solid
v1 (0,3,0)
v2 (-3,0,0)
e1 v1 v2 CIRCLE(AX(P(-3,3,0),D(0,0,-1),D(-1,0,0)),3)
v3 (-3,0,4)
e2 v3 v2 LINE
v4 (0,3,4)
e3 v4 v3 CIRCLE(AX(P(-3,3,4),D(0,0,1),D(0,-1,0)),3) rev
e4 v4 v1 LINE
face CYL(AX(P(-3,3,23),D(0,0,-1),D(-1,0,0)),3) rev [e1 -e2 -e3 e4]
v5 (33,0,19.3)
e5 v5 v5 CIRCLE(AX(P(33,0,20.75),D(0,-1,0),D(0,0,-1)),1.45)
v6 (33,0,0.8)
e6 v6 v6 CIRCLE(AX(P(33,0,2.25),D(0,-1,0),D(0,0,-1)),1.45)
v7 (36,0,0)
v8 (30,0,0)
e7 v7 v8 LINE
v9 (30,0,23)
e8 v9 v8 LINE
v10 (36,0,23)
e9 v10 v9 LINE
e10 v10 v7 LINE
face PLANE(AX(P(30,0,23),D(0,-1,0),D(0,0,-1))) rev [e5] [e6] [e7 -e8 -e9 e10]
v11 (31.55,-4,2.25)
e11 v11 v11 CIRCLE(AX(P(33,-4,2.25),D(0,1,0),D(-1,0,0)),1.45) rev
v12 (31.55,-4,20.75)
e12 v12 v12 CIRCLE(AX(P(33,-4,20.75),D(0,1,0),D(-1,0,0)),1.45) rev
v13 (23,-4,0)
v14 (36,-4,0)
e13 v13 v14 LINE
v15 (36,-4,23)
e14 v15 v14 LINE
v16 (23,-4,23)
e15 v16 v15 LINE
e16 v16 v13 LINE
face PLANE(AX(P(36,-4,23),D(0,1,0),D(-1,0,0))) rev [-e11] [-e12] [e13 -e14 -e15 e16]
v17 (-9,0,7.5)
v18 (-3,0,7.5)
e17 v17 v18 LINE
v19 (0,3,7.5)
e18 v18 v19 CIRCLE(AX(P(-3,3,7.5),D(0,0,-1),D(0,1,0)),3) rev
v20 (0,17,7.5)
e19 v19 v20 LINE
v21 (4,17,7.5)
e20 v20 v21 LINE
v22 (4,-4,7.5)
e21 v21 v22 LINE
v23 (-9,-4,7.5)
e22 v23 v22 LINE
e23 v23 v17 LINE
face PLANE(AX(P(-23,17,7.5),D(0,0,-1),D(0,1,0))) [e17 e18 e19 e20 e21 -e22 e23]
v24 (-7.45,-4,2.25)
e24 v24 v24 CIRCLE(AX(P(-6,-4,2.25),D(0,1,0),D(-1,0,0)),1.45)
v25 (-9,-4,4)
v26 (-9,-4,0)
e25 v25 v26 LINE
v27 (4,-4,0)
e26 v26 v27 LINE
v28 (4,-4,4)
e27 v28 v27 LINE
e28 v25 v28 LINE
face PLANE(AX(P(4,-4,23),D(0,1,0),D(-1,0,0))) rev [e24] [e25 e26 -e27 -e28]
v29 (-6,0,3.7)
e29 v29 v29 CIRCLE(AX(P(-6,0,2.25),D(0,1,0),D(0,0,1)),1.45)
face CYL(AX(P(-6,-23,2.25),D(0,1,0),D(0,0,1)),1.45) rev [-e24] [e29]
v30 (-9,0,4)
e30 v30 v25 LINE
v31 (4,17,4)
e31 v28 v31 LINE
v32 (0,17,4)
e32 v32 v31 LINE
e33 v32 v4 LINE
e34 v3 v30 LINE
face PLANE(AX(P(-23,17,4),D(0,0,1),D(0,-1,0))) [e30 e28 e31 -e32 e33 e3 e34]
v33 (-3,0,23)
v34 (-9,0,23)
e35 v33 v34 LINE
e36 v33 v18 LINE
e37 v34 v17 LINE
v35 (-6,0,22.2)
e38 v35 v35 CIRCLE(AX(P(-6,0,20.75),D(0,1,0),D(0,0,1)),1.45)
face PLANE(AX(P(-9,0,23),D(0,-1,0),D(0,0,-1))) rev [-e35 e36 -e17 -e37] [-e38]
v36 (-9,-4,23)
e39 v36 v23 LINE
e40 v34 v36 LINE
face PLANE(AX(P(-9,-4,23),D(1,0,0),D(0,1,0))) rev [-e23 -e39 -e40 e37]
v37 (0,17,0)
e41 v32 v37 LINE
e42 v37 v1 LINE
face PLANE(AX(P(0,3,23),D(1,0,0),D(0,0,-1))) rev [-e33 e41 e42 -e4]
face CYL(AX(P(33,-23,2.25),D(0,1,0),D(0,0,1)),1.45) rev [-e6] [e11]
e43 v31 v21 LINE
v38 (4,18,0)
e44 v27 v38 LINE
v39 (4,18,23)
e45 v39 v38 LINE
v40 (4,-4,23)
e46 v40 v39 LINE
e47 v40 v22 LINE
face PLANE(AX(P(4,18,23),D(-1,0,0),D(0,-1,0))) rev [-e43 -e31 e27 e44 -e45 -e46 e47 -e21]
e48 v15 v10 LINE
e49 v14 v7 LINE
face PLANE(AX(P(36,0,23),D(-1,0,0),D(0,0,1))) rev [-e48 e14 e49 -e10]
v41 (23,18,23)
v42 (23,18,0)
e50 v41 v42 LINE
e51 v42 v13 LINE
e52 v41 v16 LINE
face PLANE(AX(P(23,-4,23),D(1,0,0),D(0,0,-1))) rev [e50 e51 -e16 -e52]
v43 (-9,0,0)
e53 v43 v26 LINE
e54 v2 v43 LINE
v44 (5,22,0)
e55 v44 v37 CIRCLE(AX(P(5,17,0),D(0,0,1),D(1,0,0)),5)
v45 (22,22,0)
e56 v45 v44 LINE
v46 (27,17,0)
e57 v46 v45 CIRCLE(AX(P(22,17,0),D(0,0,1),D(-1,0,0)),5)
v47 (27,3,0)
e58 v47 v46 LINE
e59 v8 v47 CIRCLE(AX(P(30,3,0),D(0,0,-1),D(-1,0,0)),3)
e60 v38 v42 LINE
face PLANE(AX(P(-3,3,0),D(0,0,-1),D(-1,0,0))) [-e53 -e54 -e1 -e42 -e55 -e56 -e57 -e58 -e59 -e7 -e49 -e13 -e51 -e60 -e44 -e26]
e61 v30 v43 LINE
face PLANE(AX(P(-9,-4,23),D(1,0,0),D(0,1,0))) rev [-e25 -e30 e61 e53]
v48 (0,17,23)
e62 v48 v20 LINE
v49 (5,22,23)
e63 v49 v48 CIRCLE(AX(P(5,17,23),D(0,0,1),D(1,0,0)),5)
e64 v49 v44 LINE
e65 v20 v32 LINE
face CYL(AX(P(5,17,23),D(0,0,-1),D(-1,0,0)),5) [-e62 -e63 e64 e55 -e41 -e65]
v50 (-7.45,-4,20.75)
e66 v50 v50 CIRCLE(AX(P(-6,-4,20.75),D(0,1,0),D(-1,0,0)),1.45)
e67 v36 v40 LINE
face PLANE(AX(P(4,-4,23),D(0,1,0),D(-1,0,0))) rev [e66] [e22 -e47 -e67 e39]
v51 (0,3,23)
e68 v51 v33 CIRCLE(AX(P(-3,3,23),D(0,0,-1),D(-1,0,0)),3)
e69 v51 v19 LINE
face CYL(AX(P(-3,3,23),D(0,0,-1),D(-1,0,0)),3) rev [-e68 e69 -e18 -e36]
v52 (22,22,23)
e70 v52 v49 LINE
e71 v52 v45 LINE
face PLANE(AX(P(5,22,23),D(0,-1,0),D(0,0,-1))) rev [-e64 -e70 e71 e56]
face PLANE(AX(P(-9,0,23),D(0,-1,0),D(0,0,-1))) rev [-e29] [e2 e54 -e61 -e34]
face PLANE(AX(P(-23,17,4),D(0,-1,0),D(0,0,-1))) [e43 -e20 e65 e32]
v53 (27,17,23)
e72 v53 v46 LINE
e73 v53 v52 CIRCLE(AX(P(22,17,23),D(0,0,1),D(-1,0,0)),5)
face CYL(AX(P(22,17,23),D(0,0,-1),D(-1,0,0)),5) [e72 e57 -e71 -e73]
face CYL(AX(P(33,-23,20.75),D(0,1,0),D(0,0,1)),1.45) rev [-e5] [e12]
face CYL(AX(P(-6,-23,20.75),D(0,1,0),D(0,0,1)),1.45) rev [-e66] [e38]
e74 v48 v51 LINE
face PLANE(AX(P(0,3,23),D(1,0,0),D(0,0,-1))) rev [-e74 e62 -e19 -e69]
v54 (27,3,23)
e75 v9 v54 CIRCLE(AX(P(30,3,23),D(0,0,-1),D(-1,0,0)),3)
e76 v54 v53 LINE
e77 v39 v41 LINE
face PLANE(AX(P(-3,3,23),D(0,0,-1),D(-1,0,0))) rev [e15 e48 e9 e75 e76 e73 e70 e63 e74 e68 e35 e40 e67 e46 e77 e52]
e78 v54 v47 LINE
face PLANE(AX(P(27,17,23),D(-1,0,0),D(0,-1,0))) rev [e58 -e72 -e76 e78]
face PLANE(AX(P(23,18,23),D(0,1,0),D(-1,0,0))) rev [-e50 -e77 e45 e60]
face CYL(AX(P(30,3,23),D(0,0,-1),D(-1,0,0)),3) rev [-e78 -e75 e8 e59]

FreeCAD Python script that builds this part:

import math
import FreeCAD as App
import Part
import Sketcher
from FreeCAD import Vector


def add_polygon(sketch, points):
    """Adds a closed chain of lines whose ends are joined by coincident constraints."""
    first, n = sketch.GeometryCount, len(points)
    for a, b in zip(points, points[1:] + points[:1]):
        sketch.addGeometry(Part.LineSegment(App.Vector(*a, 0), App.Vector(*b, 0)), False)
    for i in range(n):
        sketch.addConstraint(Sketcher.Constraint("Coincident", first + i, 2, first + (i + 1) % n, 1))

doc = App.newDocument("Part")
body = doc.addObject("PartDesign::Body", "Body")

sketch1 = doc.addObject("Sketcher::SketchObject", "Sketch")
body.addObject(sketch1)
sketch1.AttachmentSupport = (doc.XY_Plane, [""])
sketch1.MapMode = "FlatFace"
sketch1.addGeometry([
    Part.LineSegment(Vector(0, 17, 0), Vector(0, 3, 0)),
    Part.ArcOfCircle(Part.Circle(Vector(-3, 3, 0), Vector(0, 0, 1), 3), math.radians(-90), math.radians(0)),
    Part.LineSegment(Vector(-3, 0, 0), Vector(-9, 0, 0)),
    Part.LineSegment(Vector(-9, 0, 0), Vector(-9, -4, 0)),
    Part.LineSegment(Vector(-9, -4, 0), Vector(4, -4, 0)),
    Part.LineSegment(Vector(4, -4, 0), Vector(4, 18, 0)),
    Part.LineSegment(Vector(4, 18, 0), Vector(23, 18, 0)),
    Part.LineSegment(Vector(23, 18, 0), Vector(23, -4, 0)),
    Part.LineSegment(Vector(23, -4, 0), Vector(36, -4, 0)),
    Part.LineSegment(Vector(36, -4, 0), Vector(36, 0, 0)),
    Part.LineSegment(Vector(36, 0, 0), Vector(30, 0, 0)),
    Part.ArcOfCircle(Part.Circle(Vector(30, 3, 0), Vector(0, 0, 1), 3), math.radians(180), math.radians(270)),
    Part.LineSegment(Vector(27, 3, 0), Vector(27, 17, 0)),
    Part.ArcOfCircle(Part.Circle(Vector(22, 17, 0), Vector(0, 0, 1), 5), math.radians(0), math.radians(90)),
    Part.LineSegment(Vector(22, 22, 0), Vector(5, 22, 0)),
    Part.ArcOfCircle(Part.Circle(Vector(5, 17, 0), Vector(0, 0, 1), 5), math.radians(90), math.radians(180)),
], False)
sketch1.addConstraint([
    Sketcher.Constraint("Tangent", 0, 2, 1, 2),
    Sketcher.Constraint("Tangent", 1, 1, 2, 1),
    Sketcher.Constraint("Coincident", 2, 2, 3, 1),
    Sketcher.Constraint("Coincident", 3, 2, 4, 1),
    Sketcher.Constraint("Coincident", 4, 2, 5, 1),
    Sketcher.Constraint("Coincident", 5, 2, 6, 1),
    Sketcher.Constraint("Coincident", 6, 2, 7, 1),
    Sketcher.Constraint("Coincident", 7, 2, 8, 1),
    Sketcher.Constraint("Coincident", 8, 2, 9, 1),
    Sketcher.Constraint("Coincident", 9, 2, 10, 1),
    Sketcher.Constraint("Tangent", 10, 2, 11, 2),
    Sketcher.Constraint("Tangent", 11, 1, 12, 1),
    Sketcher.Constraint("Tangent", 12, 2, 13, 1),
    Sketcher.Constraint("Tangent", 13, 2, 14, 1),
    Sketcher.Constraint("Tangent", 14, 2, 15, 1),
    Sketcher.Constraint("Tangent", 15, 2, 0, 1),
    Sketcher.Constraint("Vertical", 0),
    Sketcher.Constraint("Horizontal", 2),
    Sketcher.Constraint("Vertical", 3),
    Sketcher.Constraint("Horizontal", 4),
    Sketcher.Constraint("Vertical", 5),
    Sketcher.Constraint("Horizontal", 6),
    Sketcher.Constraint("Vertical", 7),
    Sketcher.Constraint("Horizontal", 8),
    Sketcher.Constraint("Vertical", 9),
    Sketcher.Constraint("Horizontal", 10),
    Sketcher.Constraint("Vertical", 12),
    Sketcher.Constraint("Horizontal", 14),
    Sketcher.Constraint("Equal", 1, 11),
    Sketcher.Constraint("Equal", 13, 15),
    Sketcher.Constraint("PointOnObject", 0, 2, -2),
    Sketcher.Constraint("PointOnObject", 1, 1, -1),
    Sketcher.Constraint("PointOnObject", 9, 2, -1),
    Sketcher.Constraint("Horizontal", 4, 2, 7, 2),
    Sketcher.Constraint("Equal", 4, 8),
    Sketcher.Constraint("Equal", 2, 10),
    Sketcher.Constraint("Radius", 1, 3.0),
    Sketcher.Constraint("Radius", 13, 5.0),
    Sketcher.Constraint("DistanceX", 2, 2, 2, 1, 6.0),
    Sketcher.Constraint("DistanceX", 4, 1, 4, 2, 13.0),
    Sketcher.Constraint("DistanceX", 6, 1, 6, 2, 19.0),
    Sketcher.Constraint("DistanceY", 0, 2, 0, 1, 14.0),
    Sketcher.Constraint("DistanceY", 3, 2, 3, 1, 4.0),
    Sketcher.Constraint("DistanceY", 5, 1, 5, 2, 22.0),
])
pad1 = doc.addObject("PartDesign::Pad", "Pad")
body.addObject(pad1)
pad1.Profile = sketch1
pad1.Length = 23

sketch2 = doc.addObject("Sketcher::SketchObject", "Sketch001")
body.addObject(sketch2)
sketch2.AttachmentSupport = (doc.XZ_Plane, [""])
sketch2.MapMode = "FlatFace"
sketch2.addGeometry([
    Part.Circle(Vector(-6, 2.25, 0), Vector(0, 0, 1), 1.45),
    Part.Circle(Vector(-6, 20.75, 0), Vector(0, 0, 1), 1.45),
    Part.Circle(Vector(33, 20.75, 0), Vector(0, 0, 1), 1.45),
    Part.Circle(Vector(33, 2.25, 0), Vector(0, 0, 1), 1.45),
], False)
sketch2.addConstraint([
    Sketcher.Constraint("Equal", 0, 1),
    Sketcher.Constraint("Equal", 1, 2),
    Sketcher.Constraint("Equal", 2, 3),
    Sketcher.Constraint("Horizontal", 1, 3, 2, 3),
    Sketcher.Constraint("Horizontal", 0, 3, 3, 3),
    Sketcher.Constraint("Vertical", 0, 3, 1, 3),
    Sketcher.Constraint("Vertical", 2, 3, 3, 3),
    Sketcher.Constraint("Diameter", 0, 2.9),
    Sketcher.Constraint("DistanceX", 0, 3, -1, 1, 6.0),
    Sketcher.Constraint("DistanceX", -1, 1, 2, 3, 33.0),
    Sketcher.Constraint("DistanceY", 0, 3, 1, 3, 18.5),
    Sketcher.Constraint("DistanceY", -1, 1, 0, 3, 2.25),
])
pocket1 = doc.addObject("PartDesign::Pocket", "Pocket")
body.addObject(pocket1)
pocket1.Profile = sketch2
pocket1.Length = 23
pocket1.Reversed = True

sketch3 = doc.addObject("Sketcher::SketchObject", "Sketch002")
body.addObject(sketch3)
sketch3.AttachmentSupport = (doc.YZ_Plane, [""])
sketch3.MapMode = "FlatFace"
add_polygon(sketch3, [(17, 4), (-4, 4), (-4, 7.5), (17, 7.5)])
sketch3.addConstraint([
    Sketcher.Constraint("Horizontal", 0),
    Sketcher.Constraint("Vertical", 1),
    Sketcher.Constraint("Horizontal", 2),
    Sketcher.Constraint("Vertical", 3),
    Sketcher.Constraint("DistanceX", 0, 2, 0, 1, 21.0),
    Sketcher.Constraint("DistanceY", 1, 1, 1, 2, 3.5),
    Sketcher.Constraint("DistanceX", 0, 2, -1, 1, 4.0),
    Sketcher.Constraint("DistanceY", -1, 1, 0, 2, 4.0),
])
pocket2 = doc.addObject("PartDesign::Pocket", "Pocket001")
body.addObject(pocket2)
pocket2.Profile = sketch3
pocket2.Type = "TwoLengths"
pocket2.Length = 23
pocket2.Length2 = 10

doc.recompute()
